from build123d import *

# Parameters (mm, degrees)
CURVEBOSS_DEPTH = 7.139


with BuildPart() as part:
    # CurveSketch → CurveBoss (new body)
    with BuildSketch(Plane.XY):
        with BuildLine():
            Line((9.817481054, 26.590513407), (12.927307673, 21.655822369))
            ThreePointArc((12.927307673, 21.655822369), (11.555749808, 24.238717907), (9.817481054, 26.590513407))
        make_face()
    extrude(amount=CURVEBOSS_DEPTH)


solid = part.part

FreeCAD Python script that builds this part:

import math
import FreeCAD as App
import Part
import Sketcher

doc = App.newDocument("Part")
body = doc.addObject("PartDesign::Body", "Body")

sketch1 = body.newObject("Sketcher::SketchObject", "Sketch")
sketch1.AttachmentSupport = (doc.getObject("XY_Plane"), [""])
sketch1.MapMode = "FlatFace"
sketch1.addGeometry(Part.LineSegment(App.Vector(10, 27, 0), App.Vector(13, 22, 0)), False)
sketch1.addGeometry(Part.ArcOfCircle(Part.Circle(App.Vector(-5, 14, 0), App.Vector(0, 0, 1), 20), math.radians(23.72), math.radians(40.72)), False)
sketch1.addConstraint(Sketcher.Constraint("Coincident", 0, 1, 1, 2))
sketch1.addConstraint(Sketcher.Constraint("Coincident", 1, 1, 0, 2))
sketch1.addConstraint(Sketcher.Constraint("Radius", 1, 19.731))
sketch1.addConstraint(Sketcher.Constraint("DistanceX", 1, 3, -1, 1, 5.137))
sketch1.addConstraint(Sketcher.Constraint("DistanceY", -1, 1, 1, 3, 13.719))
sketch1.addConstraint(Sketcher.Constraint("DistanceX", -1, 1, 0, 1, 9.817481))
sketch1.addConstraint(Sketcher.Constraint("DistanceY", 1, 1, 0, 1, 4.934691))
pad1 = body.newObject("PartDesign::Pad", "Pad")
pad1.Profile = sketch1
pad1.Length = 7.139

doc.recompute()
